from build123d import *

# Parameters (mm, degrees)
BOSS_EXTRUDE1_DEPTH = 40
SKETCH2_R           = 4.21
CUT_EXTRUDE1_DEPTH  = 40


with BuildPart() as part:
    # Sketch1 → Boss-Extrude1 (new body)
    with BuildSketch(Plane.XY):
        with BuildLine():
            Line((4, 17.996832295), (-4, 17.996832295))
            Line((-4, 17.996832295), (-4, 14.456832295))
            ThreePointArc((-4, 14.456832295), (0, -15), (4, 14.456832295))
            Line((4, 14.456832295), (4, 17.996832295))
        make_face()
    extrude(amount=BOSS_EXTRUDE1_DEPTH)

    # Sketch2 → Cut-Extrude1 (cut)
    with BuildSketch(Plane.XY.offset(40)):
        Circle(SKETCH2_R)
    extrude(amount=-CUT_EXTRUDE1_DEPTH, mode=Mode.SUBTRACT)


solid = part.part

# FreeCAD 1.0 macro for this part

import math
import FreeCAD as App
import Part
import Sketcher

V = App.Vector

doc = App.newDocument("Part")
body = doc.addObject("PartDesign::Body", "Body")

sketch1 = body.newObject("Sketcher::SketchObject", "Sketch")
sketch1.AttachmentSupport = (doc.getObject("XY_Plane"), [""])
sketch1.MapMode = "FlatFace"
sketch1.addGeometry(Part.LineSegment(V(4, 17.996832, 0), V(-4, 17.996832, 0)), False)
sketch1.addGeometry(Part.LineSegment(V(-4, 17.996832, 0), V(-4, 14.456832, 0)), False)
sketch1.addGeometry(Part.ArcOfCircle(Part.Circle(V(0, 0, 0), V(0, 0, 1), 15), math.radians(105.46601), math.radians(434.53399)), False)
sketch1.addGeometry(Part.LineSegment(V(4, 14.456832, 0), V(4, 17.996832, 0)), False)
sketch1.addConstraint(Sketcher.Constraint("Coincident", 0, 2, 1, 1))
sketch1.addConstraint(Sketcher.Constraint("Coincident", 1, 2, 2, 1))
sketch1.addConstraint(Sketcher.Constraint("Coincident", 2, 2, 3, 1))
sketch1.addConstraint(Sketcher.Constraint("Coincident", 3, 2, 0, 1))
sketch1.addConstraint(Sketcher.Constraint("Horizontal", 0))
sketch1.addConstraint(Sketcher.Constraint("Vertical", 1))
sketch1.addConstraint(Sketcher.Constraint("Vertical", 3))
sketch1.addConstraint(Sketcher.Constraint("Coincident", 2, 3, -1, 1))
sketch1.addConstraint(Sketcher.Constraint("Horizontal", 1, 2, 2, 2))
sketch1.addConstraint(Sketcher.Constraint("Radius", 2, 15.0))
sketch1.addConstraint(Sketcher.Constraint("DistanceX", 0, 2, 0, 1, 8.0))
sketch1.addConstraint(Sketcher.Constraint("DistanceY", 1, 2, 1, 1, 3.54))
pad1 = body.newObject("PartDesign::Pad", "Pad")
pad1.Profile = sketch1
pad1.Length = 40

sketch2 = body.newObject("Sketcher::SketchObject", "Sketch001")
sketch2.AttachmentSupport = (doc.getObject("XY_Plane"), [""])
sketch2.MapMode = "FlatFace"
sketch2.AttachmentOffset = App.Placement(V(0, 0, 40), App.Rotation())
sketch2.addGeometry(Part.Circle(V(0, 0, 0), V(0, 0, 1), 4.21), False)
sketch2.addConstraint(Sketcher.Constraint("Coincident", 0, 3, -1, 1))
sketch2.addConstraint(Sketcher.Constraint("Diameter", 0, 8.42))
pocket1 = body.newObject("PartDesign::Pocket", "Pocket")
pocket1.Profile = sketch2
pocket1.Length = 40

doc.recompute()
